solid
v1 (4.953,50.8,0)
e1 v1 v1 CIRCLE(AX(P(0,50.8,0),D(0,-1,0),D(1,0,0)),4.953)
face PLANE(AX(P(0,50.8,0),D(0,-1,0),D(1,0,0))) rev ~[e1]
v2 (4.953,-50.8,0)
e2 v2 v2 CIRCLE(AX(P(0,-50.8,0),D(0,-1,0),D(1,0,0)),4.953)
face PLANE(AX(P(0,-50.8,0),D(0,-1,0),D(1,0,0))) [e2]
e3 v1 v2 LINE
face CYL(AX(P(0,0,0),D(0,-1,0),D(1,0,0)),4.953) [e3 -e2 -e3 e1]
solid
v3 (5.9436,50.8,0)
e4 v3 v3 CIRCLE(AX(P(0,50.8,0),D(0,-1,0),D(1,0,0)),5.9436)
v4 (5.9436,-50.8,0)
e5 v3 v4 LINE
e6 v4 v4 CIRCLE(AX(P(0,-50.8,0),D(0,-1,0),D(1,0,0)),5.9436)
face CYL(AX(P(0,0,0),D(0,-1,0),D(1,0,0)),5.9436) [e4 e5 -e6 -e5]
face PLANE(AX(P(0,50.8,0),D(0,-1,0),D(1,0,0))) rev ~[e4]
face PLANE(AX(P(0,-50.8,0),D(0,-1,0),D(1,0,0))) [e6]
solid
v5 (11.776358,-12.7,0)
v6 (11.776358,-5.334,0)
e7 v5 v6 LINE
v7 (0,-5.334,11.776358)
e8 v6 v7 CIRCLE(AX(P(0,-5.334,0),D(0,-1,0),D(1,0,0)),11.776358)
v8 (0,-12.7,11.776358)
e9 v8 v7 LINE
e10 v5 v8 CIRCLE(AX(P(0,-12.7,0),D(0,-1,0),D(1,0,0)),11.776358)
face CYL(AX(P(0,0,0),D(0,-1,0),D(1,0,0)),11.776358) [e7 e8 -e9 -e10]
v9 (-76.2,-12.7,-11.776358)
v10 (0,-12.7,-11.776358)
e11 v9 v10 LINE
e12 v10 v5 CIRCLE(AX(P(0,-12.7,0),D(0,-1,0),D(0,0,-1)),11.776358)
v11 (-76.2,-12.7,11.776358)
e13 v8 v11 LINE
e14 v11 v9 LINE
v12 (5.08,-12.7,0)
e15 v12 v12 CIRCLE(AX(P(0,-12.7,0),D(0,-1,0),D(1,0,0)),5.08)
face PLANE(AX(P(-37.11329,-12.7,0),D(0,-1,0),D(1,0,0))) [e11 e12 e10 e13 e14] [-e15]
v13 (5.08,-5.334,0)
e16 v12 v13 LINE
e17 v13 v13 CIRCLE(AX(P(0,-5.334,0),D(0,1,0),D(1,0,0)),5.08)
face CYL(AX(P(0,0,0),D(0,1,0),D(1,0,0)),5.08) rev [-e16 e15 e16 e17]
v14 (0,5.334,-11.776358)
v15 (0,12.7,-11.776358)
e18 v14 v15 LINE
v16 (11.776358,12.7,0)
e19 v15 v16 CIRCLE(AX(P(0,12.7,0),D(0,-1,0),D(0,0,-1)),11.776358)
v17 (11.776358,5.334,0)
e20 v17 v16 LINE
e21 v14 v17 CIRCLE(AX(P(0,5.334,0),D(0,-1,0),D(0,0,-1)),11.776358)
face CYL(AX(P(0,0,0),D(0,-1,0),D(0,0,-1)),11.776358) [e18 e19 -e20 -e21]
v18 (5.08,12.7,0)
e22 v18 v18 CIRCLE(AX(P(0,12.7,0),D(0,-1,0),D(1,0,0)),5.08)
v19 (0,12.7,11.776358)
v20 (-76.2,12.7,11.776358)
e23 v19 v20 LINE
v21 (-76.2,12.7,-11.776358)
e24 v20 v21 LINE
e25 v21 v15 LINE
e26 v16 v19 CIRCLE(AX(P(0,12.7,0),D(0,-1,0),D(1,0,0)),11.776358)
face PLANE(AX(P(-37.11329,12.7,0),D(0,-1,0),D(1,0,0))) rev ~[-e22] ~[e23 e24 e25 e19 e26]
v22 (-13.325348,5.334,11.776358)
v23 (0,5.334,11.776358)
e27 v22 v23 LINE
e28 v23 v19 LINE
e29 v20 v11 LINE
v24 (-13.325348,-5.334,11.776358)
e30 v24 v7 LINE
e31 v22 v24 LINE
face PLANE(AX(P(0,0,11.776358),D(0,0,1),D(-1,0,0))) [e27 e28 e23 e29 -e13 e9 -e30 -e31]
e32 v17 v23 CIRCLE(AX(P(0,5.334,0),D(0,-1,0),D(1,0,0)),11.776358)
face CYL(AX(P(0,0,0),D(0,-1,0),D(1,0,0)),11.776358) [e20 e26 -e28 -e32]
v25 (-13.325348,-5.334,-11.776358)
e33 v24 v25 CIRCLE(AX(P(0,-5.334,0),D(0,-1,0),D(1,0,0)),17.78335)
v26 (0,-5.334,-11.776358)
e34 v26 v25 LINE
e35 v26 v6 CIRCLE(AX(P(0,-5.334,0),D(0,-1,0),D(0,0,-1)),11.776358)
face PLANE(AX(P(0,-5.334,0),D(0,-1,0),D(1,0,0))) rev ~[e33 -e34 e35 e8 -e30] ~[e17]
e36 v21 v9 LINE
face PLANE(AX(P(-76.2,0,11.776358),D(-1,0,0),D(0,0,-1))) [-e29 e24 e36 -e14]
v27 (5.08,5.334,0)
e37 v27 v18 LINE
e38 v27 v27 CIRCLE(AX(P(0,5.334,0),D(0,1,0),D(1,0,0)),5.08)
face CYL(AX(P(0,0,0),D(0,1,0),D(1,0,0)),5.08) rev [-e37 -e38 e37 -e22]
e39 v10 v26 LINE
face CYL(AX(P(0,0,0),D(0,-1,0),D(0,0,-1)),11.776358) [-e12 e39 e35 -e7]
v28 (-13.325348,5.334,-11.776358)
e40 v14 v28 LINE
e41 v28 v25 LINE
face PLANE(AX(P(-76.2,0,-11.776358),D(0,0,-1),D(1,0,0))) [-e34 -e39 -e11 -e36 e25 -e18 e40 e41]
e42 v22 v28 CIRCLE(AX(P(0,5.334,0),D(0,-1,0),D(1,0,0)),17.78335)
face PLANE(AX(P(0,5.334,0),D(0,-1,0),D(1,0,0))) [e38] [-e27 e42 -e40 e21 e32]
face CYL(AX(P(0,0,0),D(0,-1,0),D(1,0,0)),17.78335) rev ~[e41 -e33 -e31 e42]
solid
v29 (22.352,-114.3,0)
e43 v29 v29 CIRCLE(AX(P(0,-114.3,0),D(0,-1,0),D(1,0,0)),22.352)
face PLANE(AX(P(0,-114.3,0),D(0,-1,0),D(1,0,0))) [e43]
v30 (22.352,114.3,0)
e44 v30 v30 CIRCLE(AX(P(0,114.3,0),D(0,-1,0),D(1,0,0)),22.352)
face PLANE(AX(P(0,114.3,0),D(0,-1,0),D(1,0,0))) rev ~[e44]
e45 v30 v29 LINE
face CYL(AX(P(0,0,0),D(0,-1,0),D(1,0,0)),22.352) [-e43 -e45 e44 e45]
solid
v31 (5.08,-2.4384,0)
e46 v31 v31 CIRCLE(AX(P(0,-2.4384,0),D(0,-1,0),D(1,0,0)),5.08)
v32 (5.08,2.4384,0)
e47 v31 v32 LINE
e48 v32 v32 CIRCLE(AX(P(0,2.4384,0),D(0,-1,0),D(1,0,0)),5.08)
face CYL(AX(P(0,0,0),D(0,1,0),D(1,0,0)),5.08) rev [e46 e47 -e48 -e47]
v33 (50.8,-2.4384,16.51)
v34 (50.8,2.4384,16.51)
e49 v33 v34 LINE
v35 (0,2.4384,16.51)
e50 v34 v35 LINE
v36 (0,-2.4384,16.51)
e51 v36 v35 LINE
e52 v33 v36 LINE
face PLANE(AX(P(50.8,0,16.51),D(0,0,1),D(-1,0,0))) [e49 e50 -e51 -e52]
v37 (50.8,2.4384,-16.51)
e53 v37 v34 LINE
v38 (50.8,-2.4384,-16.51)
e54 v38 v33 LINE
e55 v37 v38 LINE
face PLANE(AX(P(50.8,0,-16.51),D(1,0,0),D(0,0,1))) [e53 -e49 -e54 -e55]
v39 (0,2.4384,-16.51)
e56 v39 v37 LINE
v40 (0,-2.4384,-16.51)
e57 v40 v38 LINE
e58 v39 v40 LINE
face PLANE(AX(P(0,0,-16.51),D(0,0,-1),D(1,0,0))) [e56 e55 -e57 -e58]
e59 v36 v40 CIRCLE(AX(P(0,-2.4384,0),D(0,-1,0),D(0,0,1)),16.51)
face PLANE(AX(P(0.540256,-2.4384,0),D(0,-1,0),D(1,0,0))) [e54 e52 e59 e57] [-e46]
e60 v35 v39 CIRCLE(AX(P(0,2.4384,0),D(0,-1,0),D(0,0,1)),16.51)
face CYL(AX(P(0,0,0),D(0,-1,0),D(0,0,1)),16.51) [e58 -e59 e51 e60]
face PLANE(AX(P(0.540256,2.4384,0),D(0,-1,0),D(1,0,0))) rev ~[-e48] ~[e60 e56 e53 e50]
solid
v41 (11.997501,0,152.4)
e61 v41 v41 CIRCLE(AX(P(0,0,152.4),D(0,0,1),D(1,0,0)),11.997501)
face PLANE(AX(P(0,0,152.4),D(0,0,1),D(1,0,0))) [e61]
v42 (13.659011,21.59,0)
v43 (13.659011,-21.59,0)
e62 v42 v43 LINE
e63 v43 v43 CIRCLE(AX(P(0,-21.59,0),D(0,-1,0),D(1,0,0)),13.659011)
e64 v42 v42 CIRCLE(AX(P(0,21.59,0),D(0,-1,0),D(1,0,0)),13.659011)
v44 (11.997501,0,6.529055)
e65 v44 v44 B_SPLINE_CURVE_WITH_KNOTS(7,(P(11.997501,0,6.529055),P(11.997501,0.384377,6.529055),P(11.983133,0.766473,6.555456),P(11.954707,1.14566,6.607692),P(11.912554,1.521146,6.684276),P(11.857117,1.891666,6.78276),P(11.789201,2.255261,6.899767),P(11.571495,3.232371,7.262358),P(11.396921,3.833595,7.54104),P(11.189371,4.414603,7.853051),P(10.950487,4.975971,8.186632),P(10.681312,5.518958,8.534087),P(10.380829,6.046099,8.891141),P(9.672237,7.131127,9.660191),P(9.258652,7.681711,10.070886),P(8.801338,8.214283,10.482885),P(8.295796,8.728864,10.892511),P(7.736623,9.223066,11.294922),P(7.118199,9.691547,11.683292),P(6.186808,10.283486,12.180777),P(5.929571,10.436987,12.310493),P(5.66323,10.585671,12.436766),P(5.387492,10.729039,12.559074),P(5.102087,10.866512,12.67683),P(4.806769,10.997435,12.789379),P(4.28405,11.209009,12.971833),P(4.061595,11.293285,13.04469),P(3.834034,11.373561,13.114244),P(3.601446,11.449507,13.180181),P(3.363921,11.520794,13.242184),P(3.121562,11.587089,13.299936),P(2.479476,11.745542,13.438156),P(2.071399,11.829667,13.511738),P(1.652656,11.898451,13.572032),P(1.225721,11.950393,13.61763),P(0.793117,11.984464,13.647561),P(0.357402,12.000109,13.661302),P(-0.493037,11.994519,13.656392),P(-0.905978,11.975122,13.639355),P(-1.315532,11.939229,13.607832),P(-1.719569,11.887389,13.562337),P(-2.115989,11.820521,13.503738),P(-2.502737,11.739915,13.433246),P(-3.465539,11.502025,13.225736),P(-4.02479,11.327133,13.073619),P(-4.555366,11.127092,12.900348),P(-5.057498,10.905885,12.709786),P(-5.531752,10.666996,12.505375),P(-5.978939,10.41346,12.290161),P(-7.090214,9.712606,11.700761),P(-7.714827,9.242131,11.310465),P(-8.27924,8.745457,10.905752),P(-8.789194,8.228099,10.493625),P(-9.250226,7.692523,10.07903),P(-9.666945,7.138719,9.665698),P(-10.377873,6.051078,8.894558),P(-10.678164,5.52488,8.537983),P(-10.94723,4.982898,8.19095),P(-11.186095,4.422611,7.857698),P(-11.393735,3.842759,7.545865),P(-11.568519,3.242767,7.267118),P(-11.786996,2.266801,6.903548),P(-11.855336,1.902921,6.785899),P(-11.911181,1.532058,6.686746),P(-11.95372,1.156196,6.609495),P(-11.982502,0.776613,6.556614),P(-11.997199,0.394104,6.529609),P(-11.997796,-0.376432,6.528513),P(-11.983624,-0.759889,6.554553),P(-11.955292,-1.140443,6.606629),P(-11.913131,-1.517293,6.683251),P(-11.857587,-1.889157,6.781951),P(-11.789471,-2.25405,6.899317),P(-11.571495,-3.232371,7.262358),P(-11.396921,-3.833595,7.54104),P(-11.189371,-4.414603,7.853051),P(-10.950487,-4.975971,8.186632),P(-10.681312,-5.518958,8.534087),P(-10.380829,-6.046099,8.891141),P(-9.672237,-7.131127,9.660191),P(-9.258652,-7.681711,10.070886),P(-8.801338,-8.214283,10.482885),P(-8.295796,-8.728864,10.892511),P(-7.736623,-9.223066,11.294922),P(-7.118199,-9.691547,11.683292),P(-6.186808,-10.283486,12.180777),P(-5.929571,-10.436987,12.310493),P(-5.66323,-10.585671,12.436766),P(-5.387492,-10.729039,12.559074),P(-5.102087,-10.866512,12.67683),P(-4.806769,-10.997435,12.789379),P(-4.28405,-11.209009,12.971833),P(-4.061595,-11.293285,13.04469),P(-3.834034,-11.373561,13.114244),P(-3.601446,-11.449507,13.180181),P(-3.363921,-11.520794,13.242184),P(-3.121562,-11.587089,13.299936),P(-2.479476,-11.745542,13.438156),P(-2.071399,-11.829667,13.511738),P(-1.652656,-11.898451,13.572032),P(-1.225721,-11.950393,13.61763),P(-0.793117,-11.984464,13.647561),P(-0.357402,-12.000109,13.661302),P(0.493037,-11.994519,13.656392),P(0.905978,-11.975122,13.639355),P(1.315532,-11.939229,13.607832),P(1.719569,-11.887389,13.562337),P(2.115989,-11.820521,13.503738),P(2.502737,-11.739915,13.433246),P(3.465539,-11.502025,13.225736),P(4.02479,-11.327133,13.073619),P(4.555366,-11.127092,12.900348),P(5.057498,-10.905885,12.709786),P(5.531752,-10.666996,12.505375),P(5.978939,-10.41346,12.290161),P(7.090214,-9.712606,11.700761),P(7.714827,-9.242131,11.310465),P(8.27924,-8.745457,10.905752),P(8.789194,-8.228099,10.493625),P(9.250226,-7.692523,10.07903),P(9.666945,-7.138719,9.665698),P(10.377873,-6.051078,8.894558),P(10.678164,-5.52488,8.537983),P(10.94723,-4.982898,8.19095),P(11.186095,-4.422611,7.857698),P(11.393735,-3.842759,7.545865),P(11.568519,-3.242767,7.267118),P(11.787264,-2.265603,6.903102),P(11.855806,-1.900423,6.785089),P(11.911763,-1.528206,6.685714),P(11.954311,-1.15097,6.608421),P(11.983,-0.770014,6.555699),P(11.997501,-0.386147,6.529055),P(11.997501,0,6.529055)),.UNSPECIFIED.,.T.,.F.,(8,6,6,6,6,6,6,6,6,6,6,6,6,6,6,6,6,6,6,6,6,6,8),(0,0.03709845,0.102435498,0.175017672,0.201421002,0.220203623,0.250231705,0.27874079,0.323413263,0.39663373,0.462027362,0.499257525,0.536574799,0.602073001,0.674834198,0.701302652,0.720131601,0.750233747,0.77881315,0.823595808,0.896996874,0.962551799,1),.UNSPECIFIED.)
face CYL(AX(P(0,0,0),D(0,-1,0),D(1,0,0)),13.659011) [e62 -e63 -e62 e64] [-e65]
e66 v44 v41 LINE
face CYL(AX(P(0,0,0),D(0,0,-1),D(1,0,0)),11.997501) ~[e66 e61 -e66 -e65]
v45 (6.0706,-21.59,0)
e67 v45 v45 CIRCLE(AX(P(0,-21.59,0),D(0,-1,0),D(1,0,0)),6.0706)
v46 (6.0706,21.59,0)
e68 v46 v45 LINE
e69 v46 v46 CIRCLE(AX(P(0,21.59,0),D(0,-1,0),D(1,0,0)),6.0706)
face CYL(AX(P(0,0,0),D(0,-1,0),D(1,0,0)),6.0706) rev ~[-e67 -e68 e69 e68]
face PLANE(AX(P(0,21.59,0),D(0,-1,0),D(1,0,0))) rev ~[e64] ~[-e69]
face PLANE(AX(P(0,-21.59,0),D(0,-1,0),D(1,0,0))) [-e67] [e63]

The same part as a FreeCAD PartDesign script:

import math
import FreeCAD as App
import Part
import Sketcher

V = App.Vector
Q = App.Units.Quantity

doc = App.newDocument("Part")
body = doc.addObject("PartDesign::Body", "Body")

sketch1 = body.newObject("Sketcher::SketchObject", "Sketch")
sketch1.AttachmentSupport = (doc.getObject("XZ_Plane"), [""])
sketch1.MapMode = "FlatFace"
sketch1.addGeometry(Part.Circle(V(0, 0, 0), V(0, 0, 1), 22), False)
sketch1.addConstraint([
    Sketcher.Constraint("Coincident", 0, 3, -1, 1),
    Sketcher.Constraint("Diameter", 0, Q("1.76 in")),
])
pad1 = body.newObject("PartDesign::Pad", "Pad")
pad1.Profile = sketch1
pad1.Length = Q("9 in")
pad1.Midplane = True
body2 = doc.addObject("PartDesign::Body", "Body001")

sketch2 = body2.newObject("Sketcher::SketchObject", "Sketch001")
sketch2.AttachmentSupport = (doc.getObject("XZ_Plane001"), [""])
sketch2.MapMode = "FlatFace"
sketch2.addGeometry(Part.Circle(V(0, 0, 0), V(0, 0, 1), 5), False)
sketch2.addConstraint([
    Sketcher.Constraint("Coincident", 0, 3, -1, 1),
    Sketcher.Constraint("Diameter", 0, Q("0.39 in")),
])
pad2 = body2.newObject("PartDesign::Pad", "Pad001")
pad2.Profile = sketch2
pad2.Length = Q("4 in")
pad2.Midplane = True
body3 = doc.addObject("PartDesign::Body", "Body002")

sketch3 = body3.newObject("Sketcher::SketchObject", "Sketch002")
sketch3.AttachmentSupport = (doc.getObject("XZ_Plane002"), [""])
sketch3.MapMode = "FlatFace"
sketch3.addGeometry(Part.Circle(V(0, 0, 0), V(0, 0, 1), 6), False)
sketch3.addConstraint([
    Sketcher.Constraint("Coincident", 0, 3, -1, 1),
    Sketcher.Constraint("Diameter", 0, Q("0.468 in")),
])
pad3 = body3.newObject("PartDesign::Pad", "Pad002")
pad3.Profile = sketch3
pad3.Length = Q("4 in")
pad3.Midplane = True
body4 = doc.addObject("PartDesign::Body", "Body003")

sketch4 = body4.newObject("Sketcher::SketchObject", "Sketch003")
sketch4.AttachmentSupport = (doc.getObject("XZ_Plane003"), [""])
sketch4.MapMode = "FlatFace"
sketch4.addGeometry([
    Part.ArcOfCircle(Part.Circle(V(0, 0, 0), V(0, 0, 1), 17), math.radians(90), math.radians(270)),
    Part.LineSegment(V(0, -17, 0), V(51, -17, 0)),
    Part.LineSegment(V(51, -17, 0), V(51, 17, 0)),
    Part.LineSegment(V(51, 17, 0), V(0, 17, 0)),
    Part.Circle(V(0, 0, 0), V(0, 0, 1), 5),
], False)
sketch4.addConstraint([
    Sketcher.Constraint("Tangent", 0, 2, 1, 1),
    Sketcher.Constraint("Coincident", 1, 2, 2, 1),
    Sketcher.Constraint("Coincident", 2, 2, 3, 1),
    Sketcher.Constraint("Tangent", 3, 2, 0, 1),
    Sketcher.Constraint("Horizontal", 1),
    Sketcher.Constraint("Vertical", 2),
    Sketcher.Constraint("Horizontal", 3),
    Sketcher.Constraint("Coincident", 0, 3, -1, 1),
    Sketcher.Constraint("Coincident", 4, 3, -1, 1),
    Sketcher.Constraint("Diameter", 4, Q("0.4 in")),
    Sketcher.Constraint("DistanceX", 1, 1, 1, 2, Q("2 in")),
    Sketcher.Constraint("Radius", 0, Q("0.65 in")),
])
pad4 = body4.newObject("PartDesign::Pad", "Pad003")
pad4.Profile = sketch4
pad4.Length = Q("0.192 in")
pad4.Midplane = True
body5 = doc.addObject("PartDesign::Body", "Body004")

sketch5 = body5.newObject("Sketcher::SketchObject", "Sketch004")
sketch5.AttachmentSupport = (doc.getObject("XZ_Plane004"), [""])
sketch5.MapMode = "FlatFace"
sketch5.addGeometry([
    Part.LineSegment(V(0, 12, 0), V(-76, 12, 0)),
    Part.LineSegment(V(-76, 12, 0), V(-76, -12, 0)),
    Part.LineSegment(V(-76, -12, 0), V(0, -12, 0)),
    Part.ArcOfCircle(Part.Circle(V(0, 0, 0), V(0, 0, 1), 12), math.radians(-90), math.radians(0)),
    Part.ArcOfCircle(Part.Circle(V(0, 0, 0), V(0, 0, 1), 12), math.radians(0), math.radians(90)),
    Part.Circle(V(0, 0, 0), V(0, 0, 1), 5),
], False)
sketch5.addConstraint([
    Sketcher.Constraint("Coincident", 0, 2, 1, 1),
    Sketcher.Constraint("Coincident", 1, 2, 2, 1),
    Sketcher.Constraint("Tangent", 2, 2, 3, 1),
    Sketcher.Constraint("Tangent", 3, 2, 4, 1),
    Sketcher.Constraint("Tangent", 4, 2, 0, 1),
    Sketcher.Constraint("Horizontal", 0),
    Sketcher.Constraint("Vertical", 1),
    Sketcher.Constraint("Horizontal", 2),
    Sketcher.Constraint("Coincident", 3, 3, -1, 1),
    Sketcher.Constraint("Coincident", 5, 3, -1, 1),
    Sketcher.Constraint("Equal", 3, 4),
    Sketcher.Constraint("PointOnObject", 3, 2, -1),
    Sketcher.Constraint("Diameter", 5, Q("0.4 in")),
    Sketcher.Constraint("DistanceX", 0, 2, 0, 1, Q("3 in")),
    Sketcher.Constraint("Radius", 3, 11.776358),
])
pad5 = body5.newObject("PartDesign::Pad", "Pad004")
pad5.Profile = sketch5
pad5.Length = Q("1 in")
pad5.Midplane = True

sketch6 = body5.newObject("Sketcher::SketchObject", "Sketch005")
sketch6.AttachmentSupport = (doc.getObject("XZ_Plane004"), [""])
sketch6.MapMode = "FlatFace"
sketch6.addGeometry(Part.Circle(V(0, 0, 0), V(0, 0, 1), 18), False)
sketch6.addConstraint([
    Sketcher.Constraint("Coincident", 0, 3, -1, 1),
    Sketcher.Constraint("Diameter", 0, 35.566699),
])
pocket1 = body5.newObject("PartDesign::Pocket", "Pocket")
pocket1.Profile = sketch6
pocket1.Length = Q("0.42 in")
pocket1.Midplane = True
body6 = doc.addObject("PartDesign::Body", "Body005")

sketch7 = body6.newObject("Sketcher::SketchObject", "Sketch006")
sketch7.AttachmentSupport = (doc.getObject("XZ_Plane005"), [""])
sketch7.MapMode = "FlatFace"
sketch7.addGeometry(Part.Circle(V(0, 0, 0), V(0, 0, 1), 14), False)
sketch7.addConstraint([
    Sketcher.Constraint("Coincident", 0, 3, -1, 1),
    Sketcher.Constraint("Diameter", 0, 27.318022),
])
pad6 = body6.newObject("PartDesign::Pad", "Pad005")
pad6.Profile = sketch7
pad6.Length = Q("1.7 in")
pad6.Midplane = True

sketch8 = body6.newObject("Sketcher::SketchObject", "Sketch007")
sketch8.AttachmentSupport = (doc.getObject("XY_Plane005"), [""])
sketch8.MapMode = "FlatFace"
sketch8.addGeometry(Part.Circle(V(0, 0, 0), V(0, 0, 1), 12), False)
sketch8.addConstraint([
    Sketcher.Constraint("Coincident", 0, 3, -1, 1),
    Sketcher.Constraint("Diameter", 0, 23.995001),
])
pad7 = body6.newObject("PartDesign::Pad", "Pad006")
pad7.Profile = sketch8
pad7.Length = Q("6 in")

sketch9 = body6.newObject("Sketcher::SketchObject", "Sketch008")
sketch9.AttachmentSupport = (doc.getObject("XZ_Plane005"), [""])
sketch9.MapMode = "FlatFace"
sketch9.addGeometry(Part.Circle(V(0, 0, 0), V(0, 0, 1), 6), False)
sketch9.addConstraint([
    Sketcher.Constraint("Coincident", 0, 3, -1, 1),
    Sketcher.Constraint("Diameter", 0, Q("0.478 in")),
])
pocket2 = body6.newObject("PartDesign::Pocket", "Pocket001")
pocket2.Profile = sketch9
pocket2.Length = Q("10 in")
pocket2.Midplane = True

doc.recompute()
